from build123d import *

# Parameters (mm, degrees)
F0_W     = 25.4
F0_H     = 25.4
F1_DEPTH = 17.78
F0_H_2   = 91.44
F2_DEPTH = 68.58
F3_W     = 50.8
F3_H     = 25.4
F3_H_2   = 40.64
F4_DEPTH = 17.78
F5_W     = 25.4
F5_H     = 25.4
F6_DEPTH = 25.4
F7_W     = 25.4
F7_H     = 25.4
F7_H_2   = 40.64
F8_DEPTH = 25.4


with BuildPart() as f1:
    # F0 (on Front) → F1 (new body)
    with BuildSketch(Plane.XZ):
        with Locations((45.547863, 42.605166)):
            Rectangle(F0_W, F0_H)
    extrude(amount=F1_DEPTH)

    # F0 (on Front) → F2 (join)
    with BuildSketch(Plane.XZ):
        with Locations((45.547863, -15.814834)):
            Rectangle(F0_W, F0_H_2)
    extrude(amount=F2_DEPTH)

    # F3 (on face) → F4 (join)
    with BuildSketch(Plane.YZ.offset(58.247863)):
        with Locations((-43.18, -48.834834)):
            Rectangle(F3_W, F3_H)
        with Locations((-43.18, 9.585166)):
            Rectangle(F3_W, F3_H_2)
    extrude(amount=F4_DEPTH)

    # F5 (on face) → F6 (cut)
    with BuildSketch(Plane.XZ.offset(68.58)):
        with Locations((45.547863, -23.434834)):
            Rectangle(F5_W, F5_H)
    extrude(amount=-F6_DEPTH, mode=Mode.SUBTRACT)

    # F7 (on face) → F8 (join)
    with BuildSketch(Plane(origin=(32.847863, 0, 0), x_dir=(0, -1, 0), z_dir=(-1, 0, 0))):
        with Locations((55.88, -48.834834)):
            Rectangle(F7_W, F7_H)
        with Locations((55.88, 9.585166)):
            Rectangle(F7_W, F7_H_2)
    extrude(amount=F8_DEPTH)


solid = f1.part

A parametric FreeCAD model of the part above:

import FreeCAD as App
import Part
import Sketcher
Q = App.Units.Quantity

doc = App.newDocument("Part")
body = doc.addObject("PartDesign::Body", "Body")

# Sketch on XZ plane
sketch1 = body.newObject("Sketcher::SketchObject", "Sketch")
sketch1.AttachmentSupport = (doc.getObject("XZ_Plane"), [""])
sketch1.MapMode = "FlatFace"
sketch1.addGeometry([
    Part.LineSegment(App.Vector(33, 55, 0), App.Vector(33, 30, 0)),
    Part.LineSegment(App.Vector(33, 30, 0), App.Vector(58, 30, 0)),
    Part.LineSegment(App.Vector(58, 30, 0), App.Vector(58, 55, 0)),
    Part.LineSegment(App.Vector(58, 55, 0), App.Vector(33, 55, 0)),
], False)
sketch1.addConstraint([
    Sketcher.Constraint("Coincident", 0, 2, 1, 1),
    Sketcher.Constraint("Coincident", 1, 2, 2, 1),
    Sketcher.Constraint("Coincident", 2, 2, 3, 1),
    Sketcher.Constraint("Coincident", 3, 2, 0, 1),
    Sketcher.Constraint("Vertical", 0),
    Sketcher.Constraint("Horizontal", 1),
    Sketcher.Constraint("Vertical", 2),
    Sketcher.Constraint("Horizontal", 3),
    Sketcher.Constraint("Equal", 3, 0),
    Sketcher.Constraint("DistanceX", 1, 1, 1, 2, Q("1 in")),
    Sketcher.Constraint("DistanceX", -1, 1, 0, 2, 32.847863),
    Sketcher.Constraint("DistanceY", -1, 1, 0, 2, 29.905166),
])
pad1 = body.newObject("PartDesign::Pad", "Pad")
pad1.Profile = sketch1
pad1.Length = Q("0.7 in")

# Sketch on XZ plane
sketch2 = body.newObject("Sketcher::SketchObject", "Sketch001")
sketch2.AttachmentSupport = (doc.getObject("XZ_Plane"), [""])
sketch2.MapMode = "FlatFace"
sketch2.addGeometry([
    Part.LineSegment(App.Vector(33, 30, 0), App.Vector(33, -62, 0)),
    Part.LineSegment(App.Vector(33, -62, 0), App.Vector(58, -62, 0)),
    Part.LineSegment(App.Vector(58, -62, 0), App.Vector(58, 30, 0)),
    Part.LineSegment(App.Vector(58, 30, 0), App.Vector(33, 30, 0)),
], False)
sketch2.addConstraint([
    Sketcher.Constraint("Coincident", 0, 2, 1, 1),
    Sketcher.Constraint("Coincident", 1, 2, 2, 1),
    Sketcher.Constraint("Coincident", 2, 2, 3, 1),
    Sketcher.Constraint("Coincident", 3, 2, 0, 1),
    Sketcher.Constraint("Vertical", 0),
    Sketcher.Constraint("Horizontal", 1),
    Sketcher.Constraint("Vertical", 2),
    Sketcher.Constraint("Horizontal", 3),
    Sketcher.Constraint("DistanceX", 1, 1, 1, 2, Q("1 in")),
    Sketcher.Constraint("DistanceY", 0, 2, 0, 1, Q("3.6 in")),
    Sketcher.Constraint("DistanceX", -1, 1, 0, 2, 32.847863),
    Sketcher.Constraint("DistanceY", 0, 2, -1, 1, 61.534834),
])
pad2 = body.newObject("PartDesign::Pad", "Pad001")
pad2.Profile = sketch2
pad2.Length = Q("2.7 in")

# Sketch on YZ plane
sketch3 = body.newObject("Sketcher::SketchObject", "Sketch002")
sketch3.AttachmentSupport = (doc.getObject("YZ_Plane"), [""])
sketch3.MapMode = "FlatFace"
sketch3.AttachmentOffset = App.Placement(App.Vector(0, 0, 58.247863), App.Rotation())
sketch3.addGeometry([
    Part.LineSegment(App.Vector(-69, -36, 0), App.Vector(-69, -62, 0)),  # 0
    Part.LineSegment(App.Vector(-69, -62, 0), App.Vector(-18, -62, 0)),  # 1
    Part.LineSegment(App.Vector(-18, -62, 0), App.Vector(-18, -36, 0)),  # 2
    Part.LineSegment(App.Vector(-18, -36, 0), App.Vector(-69, -36, 0)),  # 3
    Part.LineSegment(App.Vector(-69, 30, 0), App.Vector(-69, -11, 0)),  # 4
    Part.LineSegment(App.Vector(-69, -11, 0), App.Vector(-18, -11, 0)),  # 5
    Part.LineSegment(App.Vector(-18, -11, 0), App.Vector(-18, 30, 0)),  # 6
    Part.LineSegment(App.Vector(-18, 30, 0), App.Vector(-69, 30, 0)),  # 7
], False)
sketch3.addConstraint([
    Sketcher.Constraint("Coincident", 0, 2, 1, 1),
    Sketcher.Constraint("Coincident", 1, 2, 2, 1),
    Sketcher.Constraint("Coincident", 2, 2, 3, 1),
    Sketcher.Constraint("Coincident", 3, 2, 0, 1),
    Sketcher.Constraint("Coincident", 4, 2, 5, 1),
    Sketcher.Constraint("Coincident", 5, 2, 6, 1),
    Sketcher.Constraint("Coincident", 6, 2, 7, 1),
    Sketcher.Constraint("Coincident", 7, 2, 4, 1),
    Sketcher.Constraint("Vertical", 0),
    Sketcher.Constraint("Horizontal", 1),
    Sketcher.Constraint("Vertical", 2),
    Sketcher.Constraint("Horizontal", 3),
    Sketcher.Constraint("Vertical", 4),
    Sketcher.Constraint("Horizontal", 5),
    Sketcher.Constraint("Vertical", 6),
    Sketcher.Constraint("Horizontal", 7),
    Sketcher.Constraint("Vertical", 3, 2, 4, 2),
    Sketcher.Constraint("Vertical", 2, 2, 5, 2),
    Sketcher.Constraint("DistanceX", 1, 1, 1, 2, Q("2 in")),
    Sketcher.Constraint("DistanceY", 0, 2, 0, 1, Q("1 in")),
    Sketcher.Constraint("DistanceY", 4, 2, 4, 1, Q("1.6 in")),
    Sketcher.Constraint("DistanceY", 3, 2, 4, 2, Q("1 in")),
    Sketcher.Constraint("DistanceX", 0, 2, -1, 1, Q("2.7 in")),
    Sketcher.Constraint("DistanceY", 0, 2, -1, 1, 61.534834),
])
pad3 = body.newObject("PartDesign::Pad", "Pad002")
pad3.Profile = sketch3
pad3.Length = Q("0.7 in")

# Sketch on XZ plane
sketch4 = body.newObject("Sketcher::SketchObject", "Sketch003")
sketch4.AttachmentSupport = (doc.getObject("XZ_Plane"), [""])
sketch4.MapMode = "FlatFace"
sketch4.AttachmentOffset = App.Placement(App.Vector(0, 0, 2.7 * 25.4), App.Rotation())
sketch4.addGeometry([
    Part.LineSegment(App.Vector(33, -11, 0), App.Vector(33, -36, 0)),
    Part.LineSegment(App.Vector(33, -36, 0), App.Vector(58, -36, 0)),
    Part.LineSegment(App.Vector(58, -36, 0), App.Vector(58, -11, 0)),
    Part.LineSegment(App.Vector(58, -11, 0), App.Vector(33, -11, 0)),
], False)
sketch4.addConstraint([
    Sketcher.Constraint("Coincident", 0, 2, 1, 1),
    Sketcher.Constraint("Coincident", 1, 2, 2, 1),
    Sketcher.Constraint("Coincident", 2, 2, 3, 1),
    Sketcher.Constraint("Coincident", 3, 2, 0, 1),
    Sketcher.Constraint("Vertical", 0),
    Sketcher.Constraint("Horizontal", 1),
    Sketcher.Constraint("Vertical", 2),
    Sketcher.Constraint("Horizontal", 3),
    Sketcher.Constraint("Equal", 3, 0),
    Sketcher.Constraint("DistanceX", 1, 1, 1, 2, Q("1 in")),
    Sketcher.Constraint("DistanceX", -1, 1, 0, 2, 32.847863),
    Sketcher.Constraint("DistanceY", 0, 2, -1, 1, 36.134834),
])
pocket1 = body.newObject("PartDesign::Pocket", "Pocket")
pocket1.Profile = sketch4
pocket1.Length = Q("1 in")

# Sketch on YZ plane
sketch5 = body.newObject("Sketcher::SketchObject", "Sketch004")
sketch5.AttachmentSupport = (doc.getObject("YZ_Plane"), [""])
sketch5.MapMode = "FlatFace"
sketch5.AttachmentOffset = App.Placement(App.Vector(0, 0, 32.847863), App.Rotation())
sketch5.addGeometry([
    Part.LineSegment(App.Vector(-43, -36, 0), App.Vector(-43, -62, 0)),  # 0
    Part.LineSegment(App.Vector(-43, -62, 0), App.Vector(-69, -62, 0)),  # 1
    Part.LineSegment(App.Vector(-69, -62, 0), App.Vector(-69, -36, 0)),  # 2
    Part.LineSegment(App.Vector(-69, -36, 0), App.Vector(-43, -36, 0)),  # 3
    Part.LineSegment(App.Vector(-43, 30, 0), App.Vector(-43, -11, 0)),  # 4
    Part.LineSegment(App.Vector(-43, -11, 0), App.Vector(-69, -11, 0)),  # 5
    Part.LineSegment(App.Vector(-69, -11, 0), App.Vector(-69, 30, 0)),  # 6
    Part.LineSegment(App.Vector(-69, 30, 0), App.Vector(-43, 30, 0)),  # 7
], False)
sketch5.addConstraint([
    Sketcher.Constraint("Coincident", 0, 2, 1, 1),
    Sketcher.Constraint("Coincident", 1, 2, 2, 1),
    Sketcher.Constraint("Coincident", 2, 2, 3, 1),
    Sketcher.Constraint("Coincident", 3, 2, 0, 1),
    Sketcher.Constraint("Coincident", 4, 2, 5, 1),
    Sketcher.Constraint("Coincident", 5, 2, 6, 1),
    Sketcher.Constraint("Coincident", 6, 2, 7, 1),
    Sketcher.Constraint("Coincident", 7, 2, 4, 1),
    Sketcher.Constraint("Vertical", 0),
    Sketcher.Constraint("Horizontal", 1),
    Sketcher.Constraint("Vertical", 2),
    Sketcher.Constraint("Horizontal", 3),
    Sketcher.Constraint("Vertical", 4),
    Sketcher.Constraint("Horizontal", 5),
    Sketcher.Constraint("Vertical", 6),
    Sketcher.Constraint("Horizontal", 7),
    Sketcher.Constraint("Vertical", 3, 2, 4, 2),
    Sketcher.Constraint("Vertical", 2, 2, 5, 2),
    Sketcher.Constraint("Equal", 7, 0),
    Sketcher.Constraint("DistanceX", 1, 2, 1, 1, Q("1 in")),
    Sketcher.Constraint("DistanceY", 4, 2, 4, 1, Q("1.6 in")),
    Sketcher.Constraint("DistanceY", 3, 2, 4, 2, Q("1 in")),
    Sketcher.Constraint("DistanceX", 0, 2, -1, 1, Q("1.7 in")),
    Sketcher.Constraint("DistanceY", 0, 2, -1, 1, 61.534834),
])
pad4 = body.newObject("PartDesign::Pad", "Pad003")
pad4.Profile = sketch5
pad4.Length = Q("1 in")
pad4.Reversed = True

doc.recompute()
